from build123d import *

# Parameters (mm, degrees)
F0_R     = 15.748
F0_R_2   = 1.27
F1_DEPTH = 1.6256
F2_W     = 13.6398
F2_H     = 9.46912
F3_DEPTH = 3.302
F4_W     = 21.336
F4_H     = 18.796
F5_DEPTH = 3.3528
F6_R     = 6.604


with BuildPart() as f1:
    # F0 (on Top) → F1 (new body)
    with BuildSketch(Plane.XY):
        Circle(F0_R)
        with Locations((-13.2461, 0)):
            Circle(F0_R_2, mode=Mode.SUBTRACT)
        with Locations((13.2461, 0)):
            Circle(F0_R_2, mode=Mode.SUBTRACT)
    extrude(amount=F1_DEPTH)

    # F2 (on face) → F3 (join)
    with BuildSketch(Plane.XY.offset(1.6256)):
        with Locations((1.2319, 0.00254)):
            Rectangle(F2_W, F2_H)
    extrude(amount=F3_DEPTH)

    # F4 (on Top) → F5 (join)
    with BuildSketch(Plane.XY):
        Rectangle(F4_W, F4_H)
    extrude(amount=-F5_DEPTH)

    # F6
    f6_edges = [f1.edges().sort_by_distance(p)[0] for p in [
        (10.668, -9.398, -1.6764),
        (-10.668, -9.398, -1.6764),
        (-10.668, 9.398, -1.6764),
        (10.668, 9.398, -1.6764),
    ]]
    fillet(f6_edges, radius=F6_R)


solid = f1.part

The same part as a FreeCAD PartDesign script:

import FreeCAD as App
import Part
import Sketcher
from FreeCAD import Vector
Q = App.Units.Quantity


def edges_at(feature, points):
    """Names of the edges that pass closest to the given points."""
    edges = feature.Shape.Edges
    near = lambda p: min(range(len(edges)), key=lambda i: edges[i].distToShape(Part.Vertex(*p))[0])
    return sorted({f"Edge{near(p) + 1}" for p in points})


def add_polygon(sketch, points):
    """Adds a closed chain of lines whose ends are joined by coincident constraints."""
    first, n = sketch.GeometryCount, len(points)
    for a, b in zip(points, points[1:] + points[:1]):
        sketch.addGeometry(Part.LineSegment(App.Vector(*a, 0), App.Vector(*b, 0)), False)
    for i in range(n):
        sketch.addConstraint(Sketcher.Constraint("Coincident", first + i, 2, first + (i + 1) % n, 1))

doc = App.newDocument("Part")
body = doc.addObject("PartDesign::Body", "Body")

# Sketch on XY plane
sketch1 = body.newObject("Sketcher::SketchObject", "Sketch")
sketch1.AttachmentSupport = (doc.getObject("XY_Plane"), [""])
sketch1.MapMode = "FlatFace"
sketch1.addGeometry([
    Part.Circle(Vector(0, 0, 0), Vector(0, 0, 1), 15.7),
    Part.Circle(Vector(-13.2, 0, 0), Vector(0, 0, 1), 1.3),
    Part.Circle(Vector(13.2, 0, 0), Vector(0, 0, 1), 1.3),
], False)
sketch1.addConstraint([
    Sketcher.Constraint("Coincident", 0, 3, -1, 1),
    Sketcher.Constraint("Equal", 1, 2),
    Sketcher.Constraint("Symmetric", 1, 3, 2, 3, -1, 1),
    Sketcher.Constraint("PointOnObject", 1, 3, -1),
    Sketcher.Constraint("Diameter", 1, Q("0.1 in")),
    Sketcher.Constraint("Diameter", 0, Q("1.24 in")),
    Sketcher.Constraint("DistanceX", 1, 3, 2, 3, Q("1.043 in")),
])
pad1 = body.newObject("PartDesign::Pad", "Pad")
pad1.Profile = sketch1
pad1.Length = Q("0.064 in")

# Sketch on XY plane
sketch2 = body.newObject("Sketcher::SketchObject", "Sketch001")
sketch2.AttachmentSupport = (doc.getObject("XY_Plane"), [""])
sketch2.MapMode = "FlatFace"
sketch2.AttachmentOffset = App.Placement(Vector(0, 0, 0.064 * 25.4), App.Rotation())
add_polygon(sketch2, [(-6, 5), (-6, -5), (8, -5), (8, 5)])  # lines 0-3
sketch2.addConstraint([
    Sketcher.Constraint("Vertical", 0),
    Sketcher.Constraint("Horizontal", 1),
    Sketcher.Constraint("Vertical", 2),
    Sketcher.Constraint("Horizontal", 3),
    Sketcher.Constraint("DistanceX", 1, 1, 1, 2, Q("0.537 in")),
    Sketcher.Constraint("DistanceX", 0, 2, -1, 1, Q("0.22 in")),
    Sketcher.Constraint("DistanceY", 0, 2, 0, 1, Q("0.3728 in")),
    Sketcher.Constraint("DistanceY", 0, 2, -1, 1, Q("0.1863 in")),
])
pad2 = body.newObject("PartDesign::Pad", "Pad001")
pad2.Profile = sketch2
pad2.Length = Q("0.13 in")

# Sketch on XY plane
sketch3 = body.newObject("Sketcher::SketchObject", "Sketch002")
sketch3.AttachmentSupport = (doc.getObject("XY_Plane"), [""])
sketch3.MapMode = "FlatFace"
add_polygon(sketch3, [(-11, 9), (-11, -9), (11, -9), (11, 9)])  # lines 0-3
sketch3.addConstraint([
    Sketcher.Constraint("Vertical", 0),
    Sketcher.Constraint("Horizontal", 1),
    Sketcher.Constraint("Vertical", 2),
    Sketcher.Constraint("Horizontal", 3),
    Sketcher.Constraint("Symmetric", 0, 2, 2, 2, -1, 1),
    Sketcher.Constraint("DistanceX", 1, 1, 1, 2, Q("0.84 in")),
    Sketcher.Constraint("DistanceY", 0, 2, 0, 1, Q("0.74 in")),
])
pad3 = body.newObject("PartDesign::Pad", "Pad002")
pad3.Profile = sketch3
pad3.Length = Q("0.132 in")
pad3.Reversed = True
doc.recompute()

fillet = body.newObject("PartDesign::Fillet", "Fillet")
fillet.Base = (pad3, edges_at(pad3, [
    (10.668, -9.398, -1.676),
    (-10.668, -9.398, -1.676),
    (-10.668, 9.398, -1.676),
    (10.668, 9.398, -1.676),
]))
fillet.Radius = Q("0.26 in")

doc.recompute()
